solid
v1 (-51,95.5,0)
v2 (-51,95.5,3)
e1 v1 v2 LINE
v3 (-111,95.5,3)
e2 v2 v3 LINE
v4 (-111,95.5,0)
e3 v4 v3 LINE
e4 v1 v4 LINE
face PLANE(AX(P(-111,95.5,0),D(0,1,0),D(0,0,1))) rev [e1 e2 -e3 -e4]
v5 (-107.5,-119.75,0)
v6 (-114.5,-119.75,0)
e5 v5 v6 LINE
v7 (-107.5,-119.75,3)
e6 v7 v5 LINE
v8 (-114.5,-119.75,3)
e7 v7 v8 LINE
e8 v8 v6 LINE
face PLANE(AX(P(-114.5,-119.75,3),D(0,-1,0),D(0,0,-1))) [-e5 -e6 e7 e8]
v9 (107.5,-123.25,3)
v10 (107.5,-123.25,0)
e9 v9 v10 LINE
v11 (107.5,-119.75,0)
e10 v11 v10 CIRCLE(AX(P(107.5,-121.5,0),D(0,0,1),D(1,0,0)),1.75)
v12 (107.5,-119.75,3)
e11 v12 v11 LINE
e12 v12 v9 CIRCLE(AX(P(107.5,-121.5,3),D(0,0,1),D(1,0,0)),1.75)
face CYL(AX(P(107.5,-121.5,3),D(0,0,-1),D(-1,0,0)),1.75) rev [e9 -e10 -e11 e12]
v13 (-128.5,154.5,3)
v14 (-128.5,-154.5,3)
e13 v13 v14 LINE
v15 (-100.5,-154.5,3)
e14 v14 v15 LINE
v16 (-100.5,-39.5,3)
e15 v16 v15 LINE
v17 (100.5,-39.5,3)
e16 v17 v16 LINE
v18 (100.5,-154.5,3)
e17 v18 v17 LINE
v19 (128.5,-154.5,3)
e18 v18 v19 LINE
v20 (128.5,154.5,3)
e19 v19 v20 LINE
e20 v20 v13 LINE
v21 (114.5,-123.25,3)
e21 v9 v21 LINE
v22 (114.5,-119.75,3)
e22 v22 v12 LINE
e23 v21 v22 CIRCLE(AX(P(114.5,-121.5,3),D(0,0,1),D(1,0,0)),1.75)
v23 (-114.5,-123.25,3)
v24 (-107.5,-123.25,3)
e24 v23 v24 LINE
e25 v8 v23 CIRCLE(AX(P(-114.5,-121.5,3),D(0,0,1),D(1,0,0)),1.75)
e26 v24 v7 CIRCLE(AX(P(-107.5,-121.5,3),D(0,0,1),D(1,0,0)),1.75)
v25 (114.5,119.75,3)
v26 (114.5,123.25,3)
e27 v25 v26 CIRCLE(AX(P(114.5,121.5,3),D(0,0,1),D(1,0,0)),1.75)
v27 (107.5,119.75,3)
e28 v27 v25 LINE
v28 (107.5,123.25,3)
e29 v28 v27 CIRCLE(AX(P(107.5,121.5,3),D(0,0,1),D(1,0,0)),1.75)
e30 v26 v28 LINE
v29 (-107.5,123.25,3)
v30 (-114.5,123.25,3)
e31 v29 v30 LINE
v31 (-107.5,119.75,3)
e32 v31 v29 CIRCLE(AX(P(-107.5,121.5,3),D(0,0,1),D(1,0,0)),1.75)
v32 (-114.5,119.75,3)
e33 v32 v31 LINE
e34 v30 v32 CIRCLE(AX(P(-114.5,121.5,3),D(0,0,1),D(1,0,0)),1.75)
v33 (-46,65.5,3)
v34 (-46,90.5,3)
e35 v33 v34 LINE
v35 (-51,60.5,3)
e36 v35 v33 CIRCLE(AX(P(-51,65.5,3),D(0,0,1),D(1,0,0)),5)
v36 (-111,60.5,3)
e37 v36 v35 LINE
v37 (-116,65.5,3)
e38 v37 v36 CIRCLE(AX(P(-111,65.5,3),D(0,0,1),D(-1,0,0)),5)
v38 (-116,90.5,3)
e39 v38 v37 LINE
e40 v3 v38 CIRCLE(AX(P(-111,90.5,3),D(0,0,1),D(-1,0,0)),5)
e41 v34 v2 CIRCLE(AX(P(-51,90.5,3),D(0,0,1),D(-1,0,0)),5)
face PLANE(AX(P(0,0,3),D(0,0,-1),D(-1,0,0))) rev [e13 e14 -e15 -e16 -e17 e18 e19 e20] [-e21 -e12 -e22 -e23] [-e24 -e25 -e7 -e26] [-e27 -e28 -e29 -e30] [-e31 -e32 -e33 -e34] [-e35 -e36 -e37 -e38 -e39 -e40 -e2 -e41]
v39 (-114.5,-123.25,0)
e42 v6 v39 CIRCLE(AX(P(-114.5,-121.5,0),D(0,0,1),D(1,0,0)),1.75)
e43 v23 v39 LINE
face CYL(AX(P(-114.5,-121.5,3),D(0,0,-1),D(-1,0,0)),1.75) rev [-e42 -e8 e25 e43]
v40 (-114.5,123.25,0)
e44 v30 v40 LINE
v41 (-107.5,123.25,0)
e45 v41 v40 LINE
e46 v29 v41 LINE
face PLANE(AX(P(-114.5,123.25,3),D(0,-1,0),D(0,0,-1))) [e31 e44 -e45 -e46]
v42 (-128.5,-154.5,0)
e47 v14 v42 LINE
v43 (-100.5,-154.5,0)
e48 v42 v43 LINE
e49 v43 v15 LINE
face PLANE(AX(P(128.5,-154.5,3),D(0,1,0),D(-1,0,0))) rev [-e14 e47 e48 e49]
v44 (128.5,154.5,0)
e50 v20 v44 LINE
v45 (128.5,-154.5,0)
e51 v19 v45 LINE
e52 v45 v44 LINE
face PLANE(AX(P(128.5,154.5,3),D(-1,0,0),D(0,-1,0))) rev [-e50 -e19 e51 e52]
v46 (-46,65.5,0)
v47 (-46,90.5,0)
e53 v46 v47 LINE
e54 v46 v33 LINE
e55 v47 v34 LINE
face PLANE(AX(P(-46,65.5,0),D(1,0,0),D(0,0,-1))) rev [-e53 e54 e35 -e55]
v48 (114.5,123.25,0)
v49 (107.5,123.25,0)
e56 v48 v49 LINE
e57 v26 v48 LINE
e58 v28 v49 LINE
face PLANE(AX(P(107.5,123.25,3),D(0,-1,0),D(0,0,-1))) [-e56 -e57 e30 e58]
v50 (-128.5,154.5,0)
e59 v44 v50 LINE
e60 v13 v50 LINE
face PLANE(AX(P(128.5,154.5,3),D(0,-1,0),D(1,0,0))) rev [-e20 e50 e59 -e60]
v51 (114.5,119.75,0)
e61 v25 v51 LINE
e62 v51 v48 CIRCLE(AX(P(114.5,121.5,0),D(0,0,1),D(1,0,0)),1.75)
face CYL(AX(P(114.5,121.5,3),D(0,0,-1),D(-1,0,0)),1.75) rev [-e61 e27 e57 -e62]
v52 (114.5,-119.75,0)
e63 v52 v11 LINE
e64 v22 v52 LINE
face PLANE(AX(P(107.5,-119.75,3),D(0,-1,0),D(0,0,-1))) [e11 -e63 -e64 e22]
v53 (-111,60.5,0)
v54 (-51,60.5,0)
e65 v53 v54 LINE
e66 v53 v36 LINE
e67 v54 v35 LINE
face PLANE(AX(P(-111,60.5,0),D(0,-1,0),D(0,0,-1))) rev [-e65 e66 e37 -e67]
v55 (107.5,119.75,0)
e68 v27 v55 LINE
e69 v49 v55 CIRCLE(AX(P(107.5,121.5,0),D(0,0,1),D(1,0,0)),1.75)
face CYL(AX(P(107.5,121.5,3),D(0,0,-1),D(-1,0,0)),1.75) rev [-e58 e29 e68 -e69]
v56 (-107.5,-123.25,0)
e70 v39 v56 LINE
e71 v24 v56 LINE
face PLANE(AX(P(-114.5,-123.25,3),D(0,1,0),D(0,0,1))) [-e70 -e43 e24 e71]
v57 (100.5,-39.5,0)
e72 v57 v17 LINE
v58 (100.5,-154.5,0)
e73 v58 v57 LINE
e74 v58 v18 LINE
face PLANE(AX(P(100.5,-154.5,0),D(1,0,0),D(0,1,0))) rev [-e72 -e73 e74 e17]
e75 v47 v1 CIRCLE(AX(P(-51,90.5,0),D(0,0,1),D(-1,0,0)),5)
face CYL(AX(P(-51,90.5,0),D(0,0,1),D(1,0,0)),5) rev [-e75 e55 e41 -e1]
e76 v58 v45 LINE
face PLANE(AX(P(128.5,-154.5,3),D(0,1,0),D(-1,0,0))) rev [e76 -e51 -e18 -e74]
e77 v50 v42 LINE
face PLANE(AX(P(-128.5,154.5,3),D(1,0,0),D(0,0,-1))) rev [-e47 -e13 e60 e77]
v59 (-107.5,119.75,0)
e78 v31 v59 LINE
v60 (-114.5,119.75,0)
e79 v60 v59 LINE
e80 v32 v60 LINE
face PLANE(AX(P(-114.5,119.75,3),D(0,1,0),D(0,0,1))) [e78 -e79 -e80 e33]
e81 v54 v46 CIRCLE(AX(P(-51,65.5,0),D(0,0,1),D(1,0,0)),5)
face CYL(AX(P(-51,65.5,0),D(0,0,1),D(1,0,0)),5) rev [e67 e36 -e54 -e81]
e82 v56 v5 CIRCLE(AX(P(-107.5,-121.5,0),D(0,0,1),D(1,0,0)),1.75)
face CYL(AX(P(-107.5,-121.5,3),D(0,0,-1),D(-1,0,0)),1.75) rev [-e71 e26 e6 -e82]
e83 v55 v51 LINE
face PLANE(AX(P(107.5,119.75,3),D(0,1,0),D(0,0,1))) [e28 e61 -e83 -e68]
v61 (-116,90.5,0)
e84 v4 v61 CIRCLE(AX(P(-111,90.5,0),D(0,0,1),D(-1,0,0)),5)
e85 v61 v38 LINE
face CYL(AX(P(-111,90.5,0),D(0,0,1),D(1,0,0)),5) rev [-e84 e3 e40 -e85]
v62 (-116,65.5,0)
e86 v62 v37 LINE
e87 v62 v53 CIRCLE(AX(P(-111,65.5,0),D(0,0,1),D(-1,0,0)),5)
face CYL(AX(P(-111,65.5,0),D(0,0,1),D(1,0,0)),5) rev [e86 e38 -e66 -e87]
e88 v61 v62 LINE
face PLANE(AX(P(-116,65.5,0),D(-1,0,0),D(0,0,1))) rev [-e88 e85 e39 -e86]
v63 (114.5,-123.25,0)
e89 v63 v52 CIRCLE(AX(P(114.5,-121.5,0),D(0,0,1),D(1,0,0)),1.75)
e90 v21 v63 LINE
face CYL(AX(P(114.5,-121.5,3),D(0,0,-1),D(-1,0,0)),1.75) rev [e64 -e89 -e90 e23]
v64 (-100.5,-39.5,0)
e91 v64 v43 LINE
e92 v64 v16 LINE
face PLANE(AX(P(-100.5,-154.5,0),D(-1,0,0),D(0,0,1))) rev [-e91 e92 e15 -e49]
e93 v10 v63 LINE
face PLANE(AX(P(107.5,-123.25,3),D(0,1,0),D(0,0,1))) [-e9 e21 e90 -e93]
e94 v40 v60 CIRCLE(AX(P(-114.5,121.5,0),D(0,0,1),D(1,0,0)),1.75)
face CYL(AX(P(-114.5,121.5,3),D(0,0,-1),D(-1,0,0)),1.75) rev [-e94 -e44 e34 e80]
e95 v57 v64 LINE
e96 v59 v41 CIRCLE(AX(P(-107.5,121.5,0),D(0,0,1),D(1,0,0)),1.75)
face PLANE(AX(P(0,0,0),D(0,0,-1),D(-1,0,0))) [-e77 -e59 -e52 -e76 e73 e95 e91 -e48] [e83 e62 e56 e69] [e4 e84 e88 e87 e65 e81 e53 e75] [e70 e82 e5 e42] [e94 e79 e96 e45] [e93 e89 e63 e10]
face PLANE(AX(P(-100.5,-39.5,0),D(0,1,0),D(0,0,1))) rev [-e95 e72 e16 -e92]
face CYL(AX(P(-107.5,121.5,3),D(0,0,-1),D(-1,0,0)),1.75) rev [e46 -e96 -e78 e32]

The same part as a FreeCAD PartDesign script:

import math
import FreeCAD as App
import Part
import Sketcher

V = App.Vector
Q = App.Units.Quantity


def add_polygon(sketch, points):
    """Adds a closed chain of lines whose ends are joined by coincident constraints."""
    first, n = sketch.GeometryCount, len(points)
    for a, b in zip(points, points[1:] + points[:1]):
        sketch.addGeometry(Part.LineSegment(App.Vector(*a, 0), App.Vector(*b, 0)), False)
    for i in range(n):
        sketch.addConstraint(Sketcher.Constraint("Coincident", first + i, 2, first + (i + 1) % n, 1))

doc = App.newDocument("Part")
body = doc.addObject("PartDesign::Body", "Body")

# Sketch on XY plane
sketch1 = body.newObject("Sketcher::SketchObject", "Sketch")
sketch1.AttachmentSupport = (doc.getObject("XY_Plane"), [""])
sketch1.MapMode = "FlatFace"
add_polygon(sketch1, [(-128.5, 154.5), (-128.5, -154.5), (128.5, -154.5), (128.5, 154.5)])  # lines 0-3
sketch1.addGeometry(Part.ArcOfCircle(Part.Circle(V(-114.5, -121.5, 0), V(0, 0, 1), 1.8), math.radians(90), math.radians(270)), False)  # 4
sketch1.addGeometry(Part.LineSegment(V(-114.5, -119.8, 0), V(-107.5, -119.8, 0)), False)  # 5
sketch1.addGeometry(Part.ArcOfCircle(Part.Circle(V(-107.5, -121.5, 0), V(0, 0, 1), 1.8), math.radians(-90), math.radians(90)), False)  # 6
sketch1.addGeometry(Part.LineSegment(V(-107.5, -123.2, 0), V(-114.5, -123.2, 0)), False)  # 7
sketch1.addGeometry(Part.ArcOfCircle(Part.Circle(V(107.5, -121.5, 0), V(0, 0, 1), 1.8), math.radians(90), math.radians(270)), False)  # 8
sketch1.addGeometry(Part.LineSegment(V(107.5, -119.8, 0), V(114.5, -119.8, 0)), False)  # 9
sketch1.addGeometry(Part.ArcOfCircle(Part.Circle(V(114.5, -121.5, 0), V(0, 0, 1), 1.8), math.radians(-90), math.radians(90)), False)  # 10
sketch1.addGeometry(Part.LineSegment(V(114.5, -123.2, 0), V(107.5, -123.2, 0)), False)  # 11
sketch1.addGeometry(Part.ArcOfCircle(Part.Circle(V(-114.5, 121.5, 0), V(0, 0, 1), 1.8), math.radians(90), math.radians(270)), False)  # 12
sketch1.addGeometry(Part.LineSegment(V(-114.5, 123.2, 0), V(-107.5, 123.2, 0)), False)  # 13
sketch1.addGeometry(Part.ArcOfCircle(Part.Circle(V(-107.5, 121.5, 0), V(0, 0, 1), 1.8), math.radians(-90), math.radians(90)), False)  # 14
sketch1.addGeometry(Part.LineSegment(V(-107.5, 119.8, 0), V(-114.5, 119.8, 0)), False)  # 15
sketch1.addGeometry(Part.ArcOfCircle(Part.Circle(V(107.5, 121.5, 0), V(0, 0, 1), 1.8), math.radians(90), math.radians(270)), False)  # 16
sketch1.addGeometry(Part.LineSegment(V(107.5, 123.2, 0), V(114.5, 123.2, 0)), False)  # 17
sketch1.addGeometry(Part.ArcOfCircle(Part.Circle(V(114.5, 121.5, 0), V(0, 0, 1), 1.8), math.radians(-90), math.radians(90)), False)  # 18
sketch1.addGeometry(Part.LineSegment(V(114.5, 119.8, 0), V(107.5, 119.8, 0)), False)  # 19
sketch1.addConstraint([
    Sketcher.Constraint("Tangent", 4, 1, 5, 1),
    Sketcher.Constraint("Tangent", 5, 2, 6, 2),
    Sketcher.Constraint("Tangent", 6, 1, 7, 1),
    Sketcher.Constraint("Tangent", 7, 2, 4, 2),
    Sketcher.Constraint("Tangent", 8, 1, 9, 1),
    Sketcher.Constraint("Tangent", 9, 2, 10, 2),
    Sketcher.Constraint("Tangent", 10, 1, 11, 1),
    Sketcher.Constraint("Tangent", 11, 2, 8, 2),
    Sketcher.Constraint("Tangent", 12, 1, 13, 1),
    Sketcher.Constraint("Tangent", 13, 2, 14, 2),
    Sketcher.Constraint("Tangent", 14, 1, 15, 1),
    Sketcher.Constraint("Tangent", 15, 2, 12, 2),
    Sketcher.Constraint("Tangent", 16, 1, 17, 1),
    Sketcher.Constraint("Tangent", 17, 2, 18, 2),
    Sketcher.Constraint("Tangent", 18, 1, 19, 1),
    Sketcher.Constraint("Tangent", 19, 2, 16, 2),
    Sketcher.Constraint("Vertical", 0),
    Sketcher.Constraint("Horizontal", 1),
    Sketcher.Constraint("Vertical", 2),
    Sketcher.Constraint("Horizontal", 3),
    Sketcher.Constraint("Horizontal", 5),
    Sketcher.Constraint("Horizontal", 7),
    Sketcher.Constraint("Horizontal", 9),
    Sketcher.Constraint("Horizontal", 11),
    Sketcher.Constraint("Horizontal", 13),
    Sketcher.Constraint("Horizontal", 15),
    Sketcher.Constraint("Horizontal", 17),
    Sketcher.Constraint("Horizontal", 19),
    Sketcher.Constraint("Equal", 6, 8),
    Sketcher.Constraint("Equal", 10, 12),
    Sketcher.Constraint("Equal", 14, 16),
    Sketcher.Constraint("Symmetric", 10, 3, 12, 3, -1, 1),
    Sketcher.Constraint("Symmetric", 6, 3, 16, 3, -1, 1),
    Sketcher.Constraint("Symmetric", 0, 2, 2, 2, -1, 1),
    Sketcher.Constraint("Symmetric", 6, 3, 8, 3, -2),
    Sketcher.Constraint("Vertical", 4, 3, 12, 3),
    Sketcher.Constraint("Vertical", 6, 3, 14, 3),
    Sketcher.Constraint("Vertical", 10, 3, 18, 3),
    Sketcher.Constraint("DistanceX", 1, 1, 1, 2, Q("257 mm")),
    Sketcher.Constraint("DistanceX", 5, 1, 5, 2, Q("7 mm")),
    Sketcher.Constraint("DistanceY", 0, 2, 0, 1, Q("309 mm")),
    Sketcher.Constraint("Radius", 4, Q("1.75 mm")),
    Sketcher.Constraint("DistanceX", 6, 3, 8, 3, Q("215 mm")),
    Sketcher.Constraint("DistanceY", 4, 3, 12, 3, Q("243 mm")),
])
pad1 = body.newObject("PartDesign::Pad", "Pad")
pad1.Profile = sketch1
pad1.Length = 3

# Sketch on XY plane
sketch2 = body.newObject("Sketcher::SketchObject", "Sketch001")
sketch2.AttachmentSupport = (doc.getObject("XY_Plane"), [""])
sketch2.MapMode = "FlatFace"
sketch2.AttachmentOffset = App.Placement(V(0, 0, 3), App.Rotation())
add_polygon(sketch2, [(-100, -40), (-100, -154), (100, -154), (100, -40)])  # lines 0-3
sketch2.addConstraint([
    Sketcher.Constraint("Vertical", 0),
    Sketcher.Constraint("Horizontal", 1),
    Sketcher.Constraint("Vertical", 2),
    Sketcher.Constraint("Horizontal", 3),
    Sketcher.Constraint("DistanceX", 1, 1, 1, 2, Q("201 mm")),
    Sketcher.Constraint("DistanceY", 0, 2, 0, 1, Q("115 mm")),
    Sketcher.Constraint("DistanceX", 0, 2, -1, 1, Q("100.5 mm")),
    Sketcher.Constraint("DistanceY", 0, 2, -1, 1, Q("154.5 mm")),
])
pocket1 = body.newObject("PartDesign::Pocket", "Pocket")
pocket1.Profile = sketch2
pocket1.Type = "ThroughAll"

# Sketch on XY plane
sketch3 = body.newObject("Sketcher::SketchObject", "Sketch002")
sketch3.AttachmentSupport = (doc.getObject("XY_Plane"), [""])
sketch3.MapMode = "FlatFace"
sketch3.AttachmentOffset = App.Placement(V(0, 0, 3), App.Rotation())
sketch3.addGeometry([
    Part.LineSegment(V(-111, 60, 0), V(-51, 60, 0)),  # 0
    Part.ArcOfCircle(Part.Circle(V(-51, 66, 0), V(0, 0, 1), 5), math.radians(-90), math.radians(0)),  # 1
    Part.LineSegment(V(-46, 66, 0), V(-46, 90, 0)),  # 2
    Part.ArcOfCircle(Part.Circle(V(-51, 90, 0), V(0, 0, 1), 5), math.radians(0), math.radians(90)),  # 3
    Part.LineSegment(V(-51, 96, 0), V(-111, 96, 0)),  # 4
    Part.ArcOfCircle(Part.Circle(V(-111, 90, 0), V(0, 0, 1), 5), math.radians(90), math.radians(180)),  # 5
    Part.LineSegment(V(-116, 90, 0), V(-116, 66, 0)),  # 6
    Part.ArcOfCircle(Part.Circle(V(-111, 66, 0), V(0, 0, 1), 5), math.radians(180), math.radians(270)),  # 7
], False)
sketch3.addConstraint([
    Sketcher.Constraint("Tangent", 0, 2, 1, 1),
    Sketcher.Constraint("Tangent", 1, 2, 2, 1),
    Sketcher.Constraint("Tangent", 2, 2, 3, 1),
    Sketcher.Constraint("Tangent", 3, 2, 4, 1),
    Sketcher.Constraint("Tangent", 4, 2, 5, 1),
    Sketcher.Constraint("Tangent", 5, 2, 6, 1),
    Sketcher.Constraint("Tangent", 6, 2, 7, 1),
    Sketcher.Constraint("Tangent", 7, 2, 0, 1),
    Sketcher.Constraint("Horizontal", 0),
    Sketcher.Constraint("Vertical", 2),
    Sketcher.Constraint("Horizontal", 4),
    Sketcher.Constraint("Vertical", 6),
    Sketcher.Constraint("Equal", 1, 3),
    Sketcher.Constraint("Equal", 3, 5),
    Sketcher.Constraint("Equal", 5, 7),
    Sketcher.Constraint("Radius", 1, Q("5 mm")),
    Sketcher.Constraint("DistanceX", 0, 1, 0, 2, Q("60 mm")),
    Sketcher.Constraint("DistanceY", 2, 1, 2, 2, Q("25 mm")),
    Sketcher.Constraint("DistanceX", 1, 3, -1, 1, Q("51 mm")),
    Sketcher.Constraint("DistanceY", -1, 1, 1, 3, Q("65.5 mm")),
])
pocket2 = body.newObject("PartDesign::Pocket", "Pocket001")
pocket2.Profile = sketch3
pocket2.Type = "ThroughAll"

doc.recompute()
